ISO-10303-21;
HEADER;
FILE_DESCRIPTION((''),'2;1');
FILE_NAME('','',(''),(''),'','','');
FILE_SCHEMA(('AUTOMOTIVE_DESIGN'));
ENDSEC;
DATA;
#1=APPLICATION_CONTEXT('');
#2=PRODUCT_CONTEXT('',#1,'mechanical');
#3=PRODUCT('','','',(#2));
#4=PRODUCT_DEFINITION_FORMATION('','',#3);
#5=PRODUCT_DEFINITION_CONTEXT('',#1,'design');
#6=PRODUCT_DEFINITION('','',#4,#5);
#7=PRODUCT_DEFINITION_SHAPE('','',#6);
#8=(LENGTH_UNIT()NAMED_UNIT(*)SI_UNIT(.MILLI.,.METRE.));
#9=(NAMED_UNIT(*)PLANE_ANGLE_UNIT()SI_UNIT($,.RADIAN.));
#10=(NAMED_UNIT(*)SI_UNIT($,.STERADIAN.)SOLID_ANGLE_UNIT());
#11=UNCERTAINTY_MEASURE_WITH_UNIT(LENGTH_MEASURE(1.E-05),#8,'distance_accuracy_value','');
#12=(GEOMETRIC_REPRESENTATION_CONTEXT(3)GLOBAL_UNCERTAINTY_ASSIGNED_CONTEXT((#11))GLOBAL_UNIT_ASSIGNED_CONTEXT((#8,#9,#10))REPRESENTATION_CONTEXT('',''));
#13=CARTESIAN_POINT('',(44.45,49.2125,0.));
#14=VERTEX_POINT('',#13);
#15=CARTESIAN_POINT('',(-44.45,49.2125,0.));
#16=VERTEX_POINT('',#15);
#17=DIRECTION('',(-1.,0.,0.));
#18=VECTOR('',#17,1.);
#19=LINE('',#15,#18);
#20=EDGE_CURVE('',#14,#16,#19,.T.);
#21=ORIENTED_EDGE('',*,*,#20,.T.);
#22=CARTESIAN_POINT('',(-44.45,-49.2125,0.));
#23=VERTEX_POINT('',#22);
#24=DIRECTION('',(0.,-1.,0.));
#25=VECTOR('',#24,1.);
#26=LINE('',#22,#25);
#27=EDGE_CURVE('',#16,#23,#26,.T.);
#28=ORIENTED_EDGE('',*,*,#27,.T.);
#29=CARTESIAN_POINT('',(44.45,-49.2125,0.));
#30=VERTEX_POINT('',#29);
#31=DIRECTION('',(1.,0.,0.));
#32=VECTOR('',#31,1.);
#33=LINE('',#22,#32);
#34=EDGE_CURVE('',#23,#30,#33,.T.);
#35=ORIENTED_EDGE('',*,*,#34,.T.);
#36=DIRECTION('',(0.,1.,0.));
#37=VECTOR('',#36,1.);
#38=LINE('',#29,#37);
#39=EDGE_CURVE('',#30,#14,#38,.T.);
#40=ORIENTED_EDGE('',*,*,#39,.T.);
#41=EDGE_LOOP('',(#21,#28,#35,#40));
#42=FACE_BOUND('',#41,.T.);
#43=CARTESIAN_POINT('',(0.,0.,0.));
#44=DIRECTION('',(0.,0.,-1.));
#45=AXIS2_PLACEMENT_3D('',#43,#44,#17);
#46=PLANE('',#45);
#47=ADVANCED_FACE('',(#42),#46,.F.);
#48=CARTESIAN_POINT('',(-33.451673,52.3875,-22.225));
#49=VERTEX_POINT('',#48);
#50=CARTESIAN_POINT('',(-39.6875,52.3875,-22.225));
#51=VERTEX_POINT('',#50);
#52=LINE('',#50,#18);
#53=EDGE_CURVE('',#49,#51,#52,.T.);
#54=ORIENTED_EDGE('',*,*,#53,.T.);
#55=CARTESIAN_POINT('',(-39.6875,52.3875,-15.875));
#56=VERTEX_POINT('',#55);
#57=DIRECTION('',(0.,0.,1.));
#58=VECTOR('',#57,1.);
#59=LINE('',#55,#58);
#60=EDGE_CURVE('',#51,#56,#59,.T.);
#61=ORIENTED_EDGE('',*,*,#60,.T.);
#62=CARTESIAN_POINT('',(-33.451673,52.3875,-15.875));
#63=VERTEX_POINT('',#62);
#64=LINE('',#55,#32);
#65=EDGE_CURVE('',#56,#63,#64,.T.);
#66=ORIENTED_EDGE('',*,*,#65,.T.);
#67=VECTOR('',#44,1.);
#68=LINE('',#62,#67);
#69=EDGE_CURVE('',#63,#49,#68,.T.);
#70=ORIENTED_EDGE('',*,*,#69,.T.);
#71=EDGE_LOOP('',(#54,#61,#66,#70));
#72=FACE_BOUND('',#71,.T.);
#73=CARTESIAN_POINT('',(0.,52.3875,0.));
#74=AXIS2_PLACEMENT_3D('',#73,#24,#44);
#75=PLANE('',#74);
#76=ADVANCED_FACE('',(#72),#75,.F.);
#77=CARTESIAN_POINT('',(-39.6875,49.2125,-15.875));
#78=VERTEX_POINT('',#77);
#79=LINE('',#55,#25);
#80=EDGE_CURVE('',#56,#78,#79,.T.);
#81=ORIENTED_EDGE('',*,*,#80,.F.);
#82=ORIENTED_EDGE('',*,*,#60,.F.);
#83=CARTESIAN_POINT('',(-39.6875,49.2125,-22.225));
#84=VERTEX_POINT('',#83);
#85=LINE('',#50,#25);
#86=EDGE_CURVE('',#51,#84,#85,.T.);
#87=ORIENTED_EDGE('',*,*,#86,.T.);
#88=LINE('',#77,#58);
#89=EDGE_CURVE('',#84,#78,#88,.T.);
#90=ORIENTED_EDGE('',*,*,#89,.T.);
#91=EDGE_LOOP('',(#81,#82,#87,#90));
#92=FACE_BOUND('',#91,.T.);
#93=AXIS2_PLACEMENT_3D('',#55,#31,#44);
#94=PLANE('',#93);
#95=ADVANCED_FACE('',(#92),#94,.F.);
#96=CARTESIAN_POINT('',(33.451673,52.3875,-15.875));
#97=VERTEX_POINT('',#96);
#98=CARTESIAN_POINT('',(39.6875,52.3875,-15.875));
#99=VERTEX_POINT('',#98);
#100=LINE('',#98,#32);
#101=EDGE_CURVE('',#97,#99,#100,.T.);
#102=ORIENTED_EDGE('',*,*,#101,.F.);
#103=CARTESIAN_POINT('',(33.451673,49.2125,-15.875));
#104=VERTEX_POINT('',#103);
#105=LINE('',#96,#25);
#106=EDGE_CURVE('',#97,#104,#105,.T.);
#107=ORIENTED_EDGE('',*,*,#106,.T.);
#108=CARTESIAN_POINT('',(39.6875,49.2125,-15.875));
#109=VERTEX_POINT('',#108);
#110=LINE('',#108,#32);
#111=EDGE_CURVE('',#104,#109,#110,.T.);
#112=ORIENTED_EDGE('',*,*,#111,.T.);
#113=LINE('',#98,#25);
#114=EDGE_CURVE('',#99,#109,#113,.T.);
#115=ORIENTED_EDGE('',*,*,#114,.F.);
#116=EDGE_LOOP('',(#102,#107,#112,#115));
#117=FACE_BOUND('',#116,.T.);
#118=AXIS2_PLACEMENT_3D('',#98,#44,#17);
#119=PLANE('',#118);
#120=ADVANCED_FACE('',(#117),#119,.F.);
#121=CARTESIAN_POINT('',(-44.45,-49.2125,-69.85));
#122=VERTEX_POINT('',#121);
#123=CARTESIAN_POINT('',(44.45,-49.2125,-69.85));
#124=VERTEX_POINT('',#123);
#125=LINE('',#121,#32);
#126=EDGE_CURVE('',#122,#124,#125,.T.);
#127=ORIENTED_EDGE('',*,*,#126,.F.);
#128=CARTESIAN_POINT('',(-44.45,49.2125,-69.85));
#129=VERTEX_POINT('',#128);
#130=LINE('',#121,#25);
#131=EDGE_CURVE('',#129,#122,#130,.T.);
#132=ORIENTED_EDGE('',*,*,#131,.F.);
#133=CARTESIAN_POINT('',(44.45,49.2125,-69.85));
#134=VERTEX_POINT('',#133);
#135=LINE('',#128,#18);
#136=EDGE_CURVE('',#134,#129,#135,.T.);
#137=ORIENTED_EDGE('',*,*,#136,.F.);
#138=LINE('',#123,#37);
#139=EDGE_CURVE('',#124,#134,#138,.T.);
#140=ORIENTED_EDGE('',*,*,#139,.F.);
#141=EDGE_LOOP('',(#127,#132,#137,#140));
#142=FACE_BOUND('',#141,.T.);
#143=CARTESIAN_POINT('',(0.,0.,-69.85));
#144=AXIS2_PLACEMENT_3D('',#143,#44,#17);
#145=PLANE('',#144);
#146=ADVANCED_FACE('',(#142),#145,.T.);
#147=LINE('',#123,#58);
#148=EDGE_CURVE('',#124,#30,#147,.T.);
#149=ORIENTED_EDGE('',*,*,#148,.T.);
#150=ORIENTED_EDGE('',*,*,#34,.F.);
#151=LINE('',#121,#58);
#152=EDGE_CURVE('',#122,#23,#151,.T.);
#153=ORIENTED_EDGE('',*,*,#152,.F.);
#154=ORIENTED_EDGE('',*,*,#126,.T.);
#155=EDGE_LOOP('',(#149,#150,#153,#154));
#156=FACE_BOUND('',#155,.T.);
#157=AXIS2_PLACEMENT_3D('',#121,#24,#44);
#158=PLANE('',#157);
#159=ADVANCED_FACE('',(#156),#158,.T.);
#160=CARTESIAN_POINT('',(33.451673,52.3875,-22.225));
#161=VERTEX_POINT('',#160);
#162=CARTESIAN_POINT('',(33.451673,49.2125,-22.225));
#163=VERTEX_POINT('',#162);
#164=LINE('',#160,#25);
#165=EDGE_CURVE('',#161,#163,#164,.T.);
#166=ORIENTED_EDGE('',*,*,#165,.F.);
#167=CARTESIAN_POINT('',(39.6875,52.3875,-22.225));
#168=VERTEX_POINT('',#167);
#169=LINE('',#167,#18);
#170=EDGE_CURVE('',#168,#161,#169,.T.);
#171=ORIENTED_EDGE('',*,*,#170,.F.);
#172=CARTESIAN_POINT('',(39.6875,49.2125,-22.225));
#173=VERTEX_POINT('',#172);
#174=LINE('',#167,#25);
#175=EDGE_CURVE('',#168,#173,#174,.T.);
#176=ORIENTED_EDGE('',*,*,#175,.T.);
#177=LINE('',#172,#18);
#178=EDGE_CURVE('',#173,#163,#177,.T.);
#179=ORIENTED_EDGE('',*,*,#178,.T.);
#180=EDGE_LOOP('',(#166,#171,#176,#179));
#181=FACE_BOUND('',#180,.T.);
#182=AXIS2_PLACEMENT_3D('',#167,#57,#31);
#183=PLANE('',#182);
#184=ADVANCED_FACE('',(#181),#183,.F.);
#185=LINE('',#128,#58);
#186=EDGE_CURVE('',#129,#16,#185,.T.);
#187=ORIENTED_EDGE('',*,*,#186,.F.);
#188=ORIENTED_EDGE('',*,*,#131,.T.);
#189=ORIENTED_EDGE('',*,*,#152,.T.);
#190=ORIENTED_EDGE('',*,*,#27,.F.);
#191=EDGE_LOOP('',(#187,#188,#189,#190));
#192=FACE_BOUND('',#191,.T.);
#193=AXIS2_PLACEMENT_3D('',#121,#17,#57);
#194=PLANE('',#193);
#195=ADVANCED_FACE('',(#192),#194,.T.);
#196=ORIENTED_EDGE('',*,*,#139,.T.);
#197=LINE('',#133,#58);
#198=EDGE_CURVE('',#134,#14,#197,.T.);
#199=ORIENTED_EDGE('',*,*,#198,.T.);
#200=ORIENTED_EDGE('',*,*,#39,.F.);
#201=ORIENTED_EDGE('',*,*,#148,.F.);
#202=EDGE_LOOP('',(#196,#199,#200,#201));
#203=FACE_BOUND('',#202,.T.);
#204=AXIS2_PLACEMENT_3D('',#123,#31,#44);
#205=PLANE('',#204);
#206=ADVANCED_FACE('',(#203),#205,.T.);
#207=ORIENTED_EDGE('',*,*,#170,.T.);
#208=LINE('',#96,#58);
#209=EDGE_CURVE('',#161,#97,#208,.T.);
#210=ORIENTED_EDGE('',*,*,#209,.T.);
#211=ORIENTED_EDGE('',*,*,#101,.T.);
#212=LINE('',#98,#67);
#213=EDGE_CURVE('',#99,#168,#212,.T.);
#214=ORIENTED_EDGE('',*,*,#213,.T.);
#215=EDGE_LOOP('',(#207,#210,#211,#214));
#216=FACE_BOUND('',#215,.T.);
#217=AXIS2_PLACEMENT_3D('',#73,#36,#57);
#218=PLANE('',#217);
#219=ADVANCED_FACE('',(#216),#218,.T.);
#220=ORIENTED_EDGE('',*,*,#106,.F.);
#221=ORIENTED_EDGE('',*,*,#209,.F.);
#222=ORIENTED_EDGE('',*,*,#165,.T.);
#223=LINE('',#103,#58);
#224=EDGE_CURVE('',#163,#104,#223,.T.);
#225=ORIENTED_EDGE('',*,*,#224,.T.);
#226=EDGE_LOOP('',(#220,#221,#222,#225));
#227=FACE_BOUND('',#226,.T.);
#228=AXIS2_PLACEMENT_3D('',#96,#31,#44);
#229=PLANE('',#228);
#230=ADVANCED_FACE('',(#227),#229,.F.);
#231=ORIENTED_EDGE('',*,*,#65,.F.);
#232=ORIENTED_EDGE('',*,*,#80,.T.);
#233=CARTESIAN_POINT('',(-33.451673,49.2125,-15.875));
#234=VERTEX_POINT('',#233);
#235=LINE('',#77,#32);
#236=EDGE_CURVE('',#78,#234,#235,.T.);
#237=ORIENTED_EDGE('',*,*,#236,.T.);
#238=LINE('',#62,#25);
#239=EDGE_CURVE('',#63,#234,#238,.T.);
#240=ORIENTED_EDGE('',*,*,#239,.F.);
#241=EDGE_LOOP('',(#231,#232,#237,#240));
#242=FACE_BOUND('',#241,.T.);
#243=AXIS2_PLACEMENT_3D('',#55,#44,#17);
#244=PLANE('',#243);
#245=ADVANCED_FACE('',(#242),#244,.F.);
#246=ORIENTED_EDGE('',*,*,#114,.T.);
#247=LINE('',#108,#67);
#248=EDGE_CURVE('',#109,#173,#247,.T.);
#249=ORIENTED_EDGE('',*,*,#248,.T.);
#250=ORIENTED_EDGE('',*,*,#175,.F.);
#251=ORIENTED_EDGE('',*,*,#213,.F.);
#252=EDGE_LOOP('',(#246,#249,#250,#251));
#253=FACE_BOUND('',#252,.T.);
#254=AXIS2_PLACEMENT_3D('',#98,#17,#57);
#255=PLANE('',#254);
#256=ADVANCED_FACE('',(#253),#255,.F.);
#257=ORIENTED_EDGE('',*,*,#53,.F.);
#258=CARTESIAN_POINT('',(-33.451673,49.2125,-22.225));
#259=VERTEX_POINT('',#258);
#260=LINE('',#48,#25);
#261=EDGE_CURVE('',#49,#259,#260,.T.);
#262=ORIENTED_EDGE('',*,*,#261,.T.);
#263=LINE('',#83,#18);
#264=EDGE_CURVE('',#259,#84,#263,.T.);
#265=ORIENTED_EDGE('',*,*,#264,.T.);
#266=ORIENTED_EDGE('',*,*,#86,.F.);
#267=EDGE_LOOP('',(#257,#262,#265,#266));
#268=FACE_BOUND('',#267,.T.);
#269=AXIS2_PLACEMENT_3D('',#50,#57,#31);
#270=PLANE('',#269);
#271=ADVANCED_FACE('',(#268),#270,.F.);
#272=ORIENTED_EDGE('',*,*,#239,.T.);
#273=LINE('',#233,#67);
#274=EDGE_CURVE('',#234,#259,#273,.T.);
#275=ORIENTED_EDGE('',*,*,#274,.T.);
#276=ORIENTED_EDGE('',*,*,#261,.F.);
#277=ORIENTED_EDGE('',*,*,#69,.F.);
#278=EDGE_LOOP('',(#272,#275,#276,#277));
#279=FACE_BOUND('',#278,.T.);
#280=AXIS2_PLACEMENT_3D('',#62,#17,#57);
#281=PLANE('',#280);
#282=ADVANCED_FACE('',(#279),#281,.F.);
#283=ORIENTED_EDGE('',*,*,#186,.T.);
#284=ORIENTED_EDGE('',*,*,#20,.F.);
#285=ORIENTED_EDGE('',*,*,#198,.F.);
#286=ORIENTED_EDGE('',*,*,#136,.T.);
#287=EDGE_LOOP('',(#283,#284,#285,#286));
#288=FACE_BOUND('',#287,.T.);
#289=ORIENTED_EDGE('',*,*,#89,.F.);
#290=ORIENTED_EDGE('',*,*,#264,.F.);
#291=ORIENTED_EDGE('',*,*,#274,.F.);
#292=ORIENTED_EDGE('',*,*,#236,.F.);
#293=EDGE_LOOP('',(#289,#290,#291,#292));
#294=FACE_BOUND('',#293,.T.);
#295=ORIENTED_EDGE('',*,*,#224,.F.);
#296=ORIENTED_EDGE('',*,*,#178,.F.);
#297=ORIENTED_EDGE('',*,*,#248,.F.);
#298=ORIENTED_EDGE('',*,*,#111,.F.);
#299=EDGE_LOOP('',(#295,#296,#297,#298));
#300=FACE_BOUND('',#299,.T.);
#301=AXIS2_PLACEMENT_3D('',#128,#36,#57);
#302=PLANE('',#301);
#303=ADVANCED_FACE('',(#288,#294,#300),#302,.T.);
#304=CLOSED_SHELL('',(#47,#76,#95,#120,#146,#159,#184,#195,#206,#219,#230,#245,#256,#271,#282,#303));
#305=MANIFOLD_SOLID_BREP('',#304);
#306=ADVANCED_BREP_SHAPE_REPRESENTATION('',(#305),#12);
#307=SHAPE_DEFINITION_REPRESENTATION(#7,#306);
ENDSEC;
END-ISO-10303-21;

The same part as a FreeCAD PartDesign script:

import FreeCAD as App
import Part
import Sketcher

V = App.Vector
Q = App.Units.Quantity

doc = App.newDocument("Part")
body = doc.addObject("PartDesign::Body", "Body")

# Sketch on XY plane
sketch1 = body.newObject("Sketcher::SketchObject", "Sketch")
sketch1.AttachmentSupport = (doc.getObject("XY_Plane"), [""])
sketch1.MapMode = "FlatFace"
sketch1.addGeometry([
    Part.LineSegment(V(-44.45, 49.2125, 0), V(-44.45, -49.2125, 0)),
    Part.LineSegment(V(-44.45, -49.2125, 0), V(44.45, -49.2125, 0)),
    Part.LineSegment(V(44.45, -49.2125, 0), V(44.45, 49.2125, 0)),
    Part.LineSegment(V(44.45, 49.2125, 0), V(-44.45, 49.2125, 0)),
], False)
sketch1.addConstraint([
    Sketcher.Constraint("Coincident", 0, 2, 1, 1),
    Sketcher.Constraint("Coincident", 1, 2, 2, 1),
    Sketcher.Constraint("Coincident", 2, 2, 3, 1),
    Sketcher.Constraint("Coincident", 3, 2, 0, 1),
    Sketcher.Constraint("Vertical", 0),
    Sketcher.Constraint("Horizontal", 1),
    Sketcher.Constraint("Vertical", 2),
    Sketcher.Constraint("Horizontal", 3),
    Sketcher.Constraint("Symmetric", 0, 2, 2, 2, -1, 1),
    Sketcher.Constraint("DistanceX", 1, 1, 1, 2, Q("3.5 in")),
    Sketcher.Constraint("DistanceY", 0, 2, 0, 1, Q("3.875 in")),
])
pad1 = body.newObject("PartDesign::Pad", "Pad")
pad1.Profile = sketch1
pad1.Length = Q("2.75 in")
pad1.Reversed = True

# Sketch on XZ plane
sketch2 = body.newObject("Sketcher::SketchObject", "Sketch001")
sketch2.AttachmentSupport = (doc.getObject("XZ_Plane"), [""])
sketch2.MapMode = "FlatFace"
sketch2.AttachmentOffset = App.Placement(V(0, 0, -1.9375 * 25.4), App.Rotation())
sketch2.addGeometry([
    Part.LineSegment(V(-39.6875, -22.225, 0), V(-39.6875, -15.875, 0)),  # 0
    Part.LineSegment(V(-39.6875, -15.875, 0), V(-33.451673, -15.875, 0)),  # 1
    Part.LineSegment(V(-33.451673, -15.875, 0), V(-33.451673, -22.225, 0)),  # 2
    Part.LineSegment(V(-33.451673, -22.225, 0), V(-39.6875, -22.225, 0)),  # 3
    Part.LineSegment(V(33.451673, -22.225, 0), V(33.451673, -15.875, 0)),  # 4
    Part.LineSegment(V(33.451673, -15.875, 0), V(39.6875, -15.875, 0)),  # 5
    Part.LineSegment(V(39.6875, -15.875, 0), V(39.6875, -22.225, 0)),  # 6
    Part.LineSegment(V(39.6875, -22.225, 0), V(33.451673, -22.225, 0)),  # 7
], False)
sketch2.addConstraint([
    Sketcher.Constraint("Coincident", 0, 2, 1, 1),
    Sketcher.Constraint("Coincident", 1, 2, 2, 1),
    Sketcher.Constraint("Coincident", 2, 2, 3, 1),
    Sketcher.Constraint("Coincident", 3, 2, 0, 1),
    Sketcher.Constraint("Coincident", 4, 2, 5, 1),
    Sketcher.Constraint("Coincident", 5, 2, 6, 1),
    Sketcher.Constraint("Coincident", 6, 2, 7, 1),
    Sketcher.Constraint("Coincident", 7, 2, 4, 1),
    Sketcher.Constraint("Vertical", 0),
    Sketcher.Constraint("Horizontal", 1),
    Sketcher.Constraint("Vertical", 2),
    Sketcher.Constraint("Horizontal", 3),
    Sketcher.Constraint("Vertical", 4),
    Sketcher.Constraint("Horizontal", 5),
    Sketcher.Constraint("Vertical", 6),
    Sketcher.Constraint("Horizontal", 7),
    Sketcher.Constraint("Symmetric", 1, 2, 4, 2, -2),
    Sketcher.Constraint("Symmetric", 3, 2, 6, 2, -2),
    Sketcher.Constraint("DistanceY", 0, 1, 0, 2, Q("0.25 in")),
    Sketcher.Constraint("DistanceX", 0, 2, -1, 1, Q("1.5625 in")),
    Sketcher.Constraint("DistanceY", 0, 2, -1, 1, Q("0.625 in")),
    Sketcher.Constraint("DistanceX", 1, 1, 1, 2, Q("6.235827 mm")),
])
pad2 = body.newObject("PartDesign::Pad", "Pad001")
pad2.Profile = sketch2
pad2.Length = Q("0.125 in")
pad2.Reversed = True

doc.recompute()
